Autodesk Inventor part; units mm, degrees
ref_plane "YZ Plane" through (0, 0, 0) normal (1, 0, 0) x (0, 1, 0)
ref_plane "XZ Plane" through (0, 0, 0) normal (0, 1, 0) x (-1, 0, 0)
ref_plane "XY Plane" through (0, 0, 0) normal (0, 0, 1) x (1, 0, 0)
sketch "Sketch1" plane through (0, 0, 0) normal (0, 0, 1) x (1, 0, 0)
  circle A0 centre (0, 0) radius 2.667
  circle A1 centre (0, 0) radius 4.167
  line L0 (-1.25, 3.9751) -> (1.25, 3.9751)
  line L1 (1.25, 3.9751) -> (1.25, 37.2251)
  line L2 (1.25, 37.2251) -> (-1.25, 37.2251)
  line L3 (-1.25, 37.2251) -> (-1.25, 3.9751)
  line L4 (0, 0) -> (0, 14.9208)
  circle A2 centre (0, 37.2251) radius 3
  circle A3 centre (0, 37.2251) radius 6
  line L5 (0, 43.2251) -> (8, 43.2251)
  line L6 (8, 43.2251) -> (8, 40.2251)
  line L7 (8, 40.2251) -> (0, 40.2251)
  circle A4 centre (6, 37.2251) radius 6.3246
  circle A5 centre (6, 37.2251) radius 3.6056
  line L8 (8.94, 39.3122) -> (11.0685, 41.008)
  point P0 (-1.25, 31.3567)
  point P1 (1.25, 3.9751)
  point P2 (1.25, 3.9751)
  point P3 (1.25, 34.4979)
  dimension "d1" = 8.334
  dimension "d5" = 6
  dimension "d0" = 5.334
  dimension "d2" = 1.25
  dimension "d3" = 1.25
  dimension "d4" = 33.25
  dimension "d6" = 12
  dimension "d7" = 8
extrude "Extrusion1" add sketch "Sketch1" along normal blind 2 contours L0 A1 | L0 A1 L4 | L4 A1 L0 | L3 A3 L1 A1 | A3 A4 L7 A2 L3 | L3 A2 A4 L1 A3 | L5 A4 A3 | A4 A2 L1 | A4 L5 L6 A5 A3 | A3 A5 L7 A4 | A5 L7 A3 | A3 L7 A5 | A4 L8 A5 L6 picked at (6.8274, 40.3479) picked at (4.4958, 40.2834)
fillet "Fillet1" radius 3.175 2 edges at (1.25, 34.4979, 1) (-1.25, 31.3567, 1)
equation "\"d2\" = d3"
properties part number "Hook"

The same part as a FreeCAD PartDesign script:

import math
import FreeCAD as App
import Part
import Sketcher

V = App.Vector
Q = App.Units.Quantity


def edges_at(feature, points):
    """Names of the edges that pass closest to the given points."""
    edges = feature.Shape.Edges
    near = lambda p: min(range(len(edges)), key=lambda i: edges[i].distToShape(Part.Vertex(*p))[0])
    return sorted({f"Edge{near(p) + 1}" for p in points})

doc = App.newDocument("Part")
body = doc.addObject("PartDesign::Body", "Body")

sketch1 = body.newObject("Sketcher::SketchObject", "Sketch")
sketch1.AttachmentSupport = (doc.getObject("XY_Plane"), [""])
sketch1.MapMode = "FlatFace"
sketch1.addGeometry(Part.LineSegment(V(1.25, 3.9751, 0), V(1.25, 34.497922, 0)), False)
sketch1.addGeometry(Part.ArcOfCircle(Part.Circle(V(0, 37.2251, 0), V(0, 0, 1), 3), math.radians(90), math.radians(294.624318)), False)
sketch1.addGeometry(Part.LineSegment(V(0, 40.2251, 0), V(8, 40.2251, 0)), False)
sketch1.addGeometry(Part.ArcOfCircle(Part.Circle(V(6, 37.2251, 0), V(0, 0, 1), 3.6056), math.radians(35.370865), math.radians(56.309932)), False)
sketch1.addGeometry(Part.LineSegment(V(8.94, 39.3122, 0), V(11.0685, 41.008, 0)), False)
sketch1.addGeometry(Part.ArcOfCircle(Part.Circle(V(6, 37.2251, 0), V(0, 0, 1), 6.3246), math.radians(36.736002), math.radians(71.565051)), False)
sketch1.addGeometry(Part.LineSegment(V(8, 43.2251, 0), V(0, 43.2251, 0)), False)
sketch1.addGeometry(Part.ArcOfCircle(Part.Circle(V(0, 37.2251, 0), V(0, 0, 1), 6), math.radians(90), math.radians(257.975301)), False)
sketch1.addGeometry(Part.LineSegment(V(-1.25, 31.356753, 0), V(-1.25, 3.9751, 0)), False)
sketch1.addGeometry(Part.ArcOfCircle(Part.Circle(V(0, 0, 0), V(0, 0, 1), 4.167), math.radians(107.456146), math.radians(432.543854)), False)
sketch1.addGeometry(Part.Circle(V(0, 0, 0), V(0, 0, 1), 2.667), False)
sketch1.addConstraint(Sketcher.Constraint("Coincident", 0, 2, 1, 2))
sketch1.addConstraint(Sketcher.Constraint("Tangent", 1, 1, 2, 1))
sketch1.addConstraint(Sketcher.Constraint("Coincident", 2, 2, 3, 2))
sketch1.addConstraint(Sketcher.Constraint("Coincident", 3, 1, 4, 1))
sketch1.addConstraint(Sketcher.Constraint("Coincident", 4, 2, 5, 1))
sketch1.addConstraint(Sketcher.Constraint("Coincident", 5, 2, 6, 1))
sketch1.addConstraint(Sketcher.Constraint("Tangent", 6, 2, 7, 1))
sketch1.addConstraint(Sketcher.Constraint("Coincident", 7, 2, 8, 1))
sketch1.addConstraint(Sketcher.Constraint("Coincident", 8, 2, 9, 1))
sketch1.addConstraint(Sketcher.Constraint("Coincident", 9, 2, 0, 1))
sketch1.addConstraint(Sketcher.Constraint("Vertical", 0))
sketch1.addConstraint(Sketcher.Constraint("Horizontal", 2))
sketch1.addConstraint(Sketcher.Constraint("Horizontal", 6))
sketch1.addConstraint(Sketcher.Constraint("Vertical", 8))
sketch1.addConstraint(Sketcher.Constraint("Coincident", 9, 3, -1, 1))
sketch1.addConstraint(Sketcher.Constraint("Coincident", 10, 3, -1, 1))
sketch1.addConstraint(Sketcher.Constraint("Coincident", 5, 3, 3, 3))
sketch1.addConstraint(Sketcher.Constraint("Coincident", 7, 3, 1, 3))
sketch1.addConstraint(Sketcher.Constraint("PointOnObject", 1, 3, -2))
sketch1.addConstraint(Sketcher.Constraint("Horizontal", 1, 3, 3, 3))
sketch1.addConstraint(Sketcher.Constraint("Horizontal", 8, 2, 9, 2))
sketch1.addConstraint(Sketcher.Constraint("Vertical", 2, 2, 5, 2))
sketch1.addConstraint(Sketcher.Constraint("Radius", 1, Q("3 mm")))
sketch1.addConstraint(Sketcher.Constraint("Radius", 7, Q("6 mm")))
sketch1.addConstraint(Sketcher.Constraint("DistanceX", 2, 1, 2, 2, Q("8 mm")))
sketch1.addConstraint(Sketcher.Constraint("Diameter", 10, Q("5.334 mm")))
sketch1.addConstraint(Sketcher.Constraint("DistanceX", -1, 1, 3, 3, Q("6 mm")))
sketch1.addConstraint(Sketcher.Constraint("Radius", 9, Q("4.167 mm")))
sketch1.addConstraint(Sketcher.Constraint("DistanceX", -1, 1, 0, 2, Q("1.25 mm")))
sketch1.addConstraint(Sketcher.Constraint("DistanceY", 8, 2, 1, 3, Q("33.25 mm")))
sketch1.addConstraint(Sketcher.Constraint("DistanceX", -1, 1, 3, 1, Q("8.94 mm")))
sketch1.addConstraint(Sketcher.Constraint("DistanceY", -1, 1, 4, 2, Q("41.008 mm")))
pad1 = body.newObject("PartDesign::Pad", "Pad")
pad1.Profile = sketch1
pad1.Length = 2
doc.recompute()

fillet = body.newObject("PartDesign::Fillet", "Fillet")
fillet.Base = (pad1, edges_at(pad1, [(1.25, 34.498, 1), (-1.25, 31.357, 1)]))
fillet.Radius = 3.175

doc.recompute()
